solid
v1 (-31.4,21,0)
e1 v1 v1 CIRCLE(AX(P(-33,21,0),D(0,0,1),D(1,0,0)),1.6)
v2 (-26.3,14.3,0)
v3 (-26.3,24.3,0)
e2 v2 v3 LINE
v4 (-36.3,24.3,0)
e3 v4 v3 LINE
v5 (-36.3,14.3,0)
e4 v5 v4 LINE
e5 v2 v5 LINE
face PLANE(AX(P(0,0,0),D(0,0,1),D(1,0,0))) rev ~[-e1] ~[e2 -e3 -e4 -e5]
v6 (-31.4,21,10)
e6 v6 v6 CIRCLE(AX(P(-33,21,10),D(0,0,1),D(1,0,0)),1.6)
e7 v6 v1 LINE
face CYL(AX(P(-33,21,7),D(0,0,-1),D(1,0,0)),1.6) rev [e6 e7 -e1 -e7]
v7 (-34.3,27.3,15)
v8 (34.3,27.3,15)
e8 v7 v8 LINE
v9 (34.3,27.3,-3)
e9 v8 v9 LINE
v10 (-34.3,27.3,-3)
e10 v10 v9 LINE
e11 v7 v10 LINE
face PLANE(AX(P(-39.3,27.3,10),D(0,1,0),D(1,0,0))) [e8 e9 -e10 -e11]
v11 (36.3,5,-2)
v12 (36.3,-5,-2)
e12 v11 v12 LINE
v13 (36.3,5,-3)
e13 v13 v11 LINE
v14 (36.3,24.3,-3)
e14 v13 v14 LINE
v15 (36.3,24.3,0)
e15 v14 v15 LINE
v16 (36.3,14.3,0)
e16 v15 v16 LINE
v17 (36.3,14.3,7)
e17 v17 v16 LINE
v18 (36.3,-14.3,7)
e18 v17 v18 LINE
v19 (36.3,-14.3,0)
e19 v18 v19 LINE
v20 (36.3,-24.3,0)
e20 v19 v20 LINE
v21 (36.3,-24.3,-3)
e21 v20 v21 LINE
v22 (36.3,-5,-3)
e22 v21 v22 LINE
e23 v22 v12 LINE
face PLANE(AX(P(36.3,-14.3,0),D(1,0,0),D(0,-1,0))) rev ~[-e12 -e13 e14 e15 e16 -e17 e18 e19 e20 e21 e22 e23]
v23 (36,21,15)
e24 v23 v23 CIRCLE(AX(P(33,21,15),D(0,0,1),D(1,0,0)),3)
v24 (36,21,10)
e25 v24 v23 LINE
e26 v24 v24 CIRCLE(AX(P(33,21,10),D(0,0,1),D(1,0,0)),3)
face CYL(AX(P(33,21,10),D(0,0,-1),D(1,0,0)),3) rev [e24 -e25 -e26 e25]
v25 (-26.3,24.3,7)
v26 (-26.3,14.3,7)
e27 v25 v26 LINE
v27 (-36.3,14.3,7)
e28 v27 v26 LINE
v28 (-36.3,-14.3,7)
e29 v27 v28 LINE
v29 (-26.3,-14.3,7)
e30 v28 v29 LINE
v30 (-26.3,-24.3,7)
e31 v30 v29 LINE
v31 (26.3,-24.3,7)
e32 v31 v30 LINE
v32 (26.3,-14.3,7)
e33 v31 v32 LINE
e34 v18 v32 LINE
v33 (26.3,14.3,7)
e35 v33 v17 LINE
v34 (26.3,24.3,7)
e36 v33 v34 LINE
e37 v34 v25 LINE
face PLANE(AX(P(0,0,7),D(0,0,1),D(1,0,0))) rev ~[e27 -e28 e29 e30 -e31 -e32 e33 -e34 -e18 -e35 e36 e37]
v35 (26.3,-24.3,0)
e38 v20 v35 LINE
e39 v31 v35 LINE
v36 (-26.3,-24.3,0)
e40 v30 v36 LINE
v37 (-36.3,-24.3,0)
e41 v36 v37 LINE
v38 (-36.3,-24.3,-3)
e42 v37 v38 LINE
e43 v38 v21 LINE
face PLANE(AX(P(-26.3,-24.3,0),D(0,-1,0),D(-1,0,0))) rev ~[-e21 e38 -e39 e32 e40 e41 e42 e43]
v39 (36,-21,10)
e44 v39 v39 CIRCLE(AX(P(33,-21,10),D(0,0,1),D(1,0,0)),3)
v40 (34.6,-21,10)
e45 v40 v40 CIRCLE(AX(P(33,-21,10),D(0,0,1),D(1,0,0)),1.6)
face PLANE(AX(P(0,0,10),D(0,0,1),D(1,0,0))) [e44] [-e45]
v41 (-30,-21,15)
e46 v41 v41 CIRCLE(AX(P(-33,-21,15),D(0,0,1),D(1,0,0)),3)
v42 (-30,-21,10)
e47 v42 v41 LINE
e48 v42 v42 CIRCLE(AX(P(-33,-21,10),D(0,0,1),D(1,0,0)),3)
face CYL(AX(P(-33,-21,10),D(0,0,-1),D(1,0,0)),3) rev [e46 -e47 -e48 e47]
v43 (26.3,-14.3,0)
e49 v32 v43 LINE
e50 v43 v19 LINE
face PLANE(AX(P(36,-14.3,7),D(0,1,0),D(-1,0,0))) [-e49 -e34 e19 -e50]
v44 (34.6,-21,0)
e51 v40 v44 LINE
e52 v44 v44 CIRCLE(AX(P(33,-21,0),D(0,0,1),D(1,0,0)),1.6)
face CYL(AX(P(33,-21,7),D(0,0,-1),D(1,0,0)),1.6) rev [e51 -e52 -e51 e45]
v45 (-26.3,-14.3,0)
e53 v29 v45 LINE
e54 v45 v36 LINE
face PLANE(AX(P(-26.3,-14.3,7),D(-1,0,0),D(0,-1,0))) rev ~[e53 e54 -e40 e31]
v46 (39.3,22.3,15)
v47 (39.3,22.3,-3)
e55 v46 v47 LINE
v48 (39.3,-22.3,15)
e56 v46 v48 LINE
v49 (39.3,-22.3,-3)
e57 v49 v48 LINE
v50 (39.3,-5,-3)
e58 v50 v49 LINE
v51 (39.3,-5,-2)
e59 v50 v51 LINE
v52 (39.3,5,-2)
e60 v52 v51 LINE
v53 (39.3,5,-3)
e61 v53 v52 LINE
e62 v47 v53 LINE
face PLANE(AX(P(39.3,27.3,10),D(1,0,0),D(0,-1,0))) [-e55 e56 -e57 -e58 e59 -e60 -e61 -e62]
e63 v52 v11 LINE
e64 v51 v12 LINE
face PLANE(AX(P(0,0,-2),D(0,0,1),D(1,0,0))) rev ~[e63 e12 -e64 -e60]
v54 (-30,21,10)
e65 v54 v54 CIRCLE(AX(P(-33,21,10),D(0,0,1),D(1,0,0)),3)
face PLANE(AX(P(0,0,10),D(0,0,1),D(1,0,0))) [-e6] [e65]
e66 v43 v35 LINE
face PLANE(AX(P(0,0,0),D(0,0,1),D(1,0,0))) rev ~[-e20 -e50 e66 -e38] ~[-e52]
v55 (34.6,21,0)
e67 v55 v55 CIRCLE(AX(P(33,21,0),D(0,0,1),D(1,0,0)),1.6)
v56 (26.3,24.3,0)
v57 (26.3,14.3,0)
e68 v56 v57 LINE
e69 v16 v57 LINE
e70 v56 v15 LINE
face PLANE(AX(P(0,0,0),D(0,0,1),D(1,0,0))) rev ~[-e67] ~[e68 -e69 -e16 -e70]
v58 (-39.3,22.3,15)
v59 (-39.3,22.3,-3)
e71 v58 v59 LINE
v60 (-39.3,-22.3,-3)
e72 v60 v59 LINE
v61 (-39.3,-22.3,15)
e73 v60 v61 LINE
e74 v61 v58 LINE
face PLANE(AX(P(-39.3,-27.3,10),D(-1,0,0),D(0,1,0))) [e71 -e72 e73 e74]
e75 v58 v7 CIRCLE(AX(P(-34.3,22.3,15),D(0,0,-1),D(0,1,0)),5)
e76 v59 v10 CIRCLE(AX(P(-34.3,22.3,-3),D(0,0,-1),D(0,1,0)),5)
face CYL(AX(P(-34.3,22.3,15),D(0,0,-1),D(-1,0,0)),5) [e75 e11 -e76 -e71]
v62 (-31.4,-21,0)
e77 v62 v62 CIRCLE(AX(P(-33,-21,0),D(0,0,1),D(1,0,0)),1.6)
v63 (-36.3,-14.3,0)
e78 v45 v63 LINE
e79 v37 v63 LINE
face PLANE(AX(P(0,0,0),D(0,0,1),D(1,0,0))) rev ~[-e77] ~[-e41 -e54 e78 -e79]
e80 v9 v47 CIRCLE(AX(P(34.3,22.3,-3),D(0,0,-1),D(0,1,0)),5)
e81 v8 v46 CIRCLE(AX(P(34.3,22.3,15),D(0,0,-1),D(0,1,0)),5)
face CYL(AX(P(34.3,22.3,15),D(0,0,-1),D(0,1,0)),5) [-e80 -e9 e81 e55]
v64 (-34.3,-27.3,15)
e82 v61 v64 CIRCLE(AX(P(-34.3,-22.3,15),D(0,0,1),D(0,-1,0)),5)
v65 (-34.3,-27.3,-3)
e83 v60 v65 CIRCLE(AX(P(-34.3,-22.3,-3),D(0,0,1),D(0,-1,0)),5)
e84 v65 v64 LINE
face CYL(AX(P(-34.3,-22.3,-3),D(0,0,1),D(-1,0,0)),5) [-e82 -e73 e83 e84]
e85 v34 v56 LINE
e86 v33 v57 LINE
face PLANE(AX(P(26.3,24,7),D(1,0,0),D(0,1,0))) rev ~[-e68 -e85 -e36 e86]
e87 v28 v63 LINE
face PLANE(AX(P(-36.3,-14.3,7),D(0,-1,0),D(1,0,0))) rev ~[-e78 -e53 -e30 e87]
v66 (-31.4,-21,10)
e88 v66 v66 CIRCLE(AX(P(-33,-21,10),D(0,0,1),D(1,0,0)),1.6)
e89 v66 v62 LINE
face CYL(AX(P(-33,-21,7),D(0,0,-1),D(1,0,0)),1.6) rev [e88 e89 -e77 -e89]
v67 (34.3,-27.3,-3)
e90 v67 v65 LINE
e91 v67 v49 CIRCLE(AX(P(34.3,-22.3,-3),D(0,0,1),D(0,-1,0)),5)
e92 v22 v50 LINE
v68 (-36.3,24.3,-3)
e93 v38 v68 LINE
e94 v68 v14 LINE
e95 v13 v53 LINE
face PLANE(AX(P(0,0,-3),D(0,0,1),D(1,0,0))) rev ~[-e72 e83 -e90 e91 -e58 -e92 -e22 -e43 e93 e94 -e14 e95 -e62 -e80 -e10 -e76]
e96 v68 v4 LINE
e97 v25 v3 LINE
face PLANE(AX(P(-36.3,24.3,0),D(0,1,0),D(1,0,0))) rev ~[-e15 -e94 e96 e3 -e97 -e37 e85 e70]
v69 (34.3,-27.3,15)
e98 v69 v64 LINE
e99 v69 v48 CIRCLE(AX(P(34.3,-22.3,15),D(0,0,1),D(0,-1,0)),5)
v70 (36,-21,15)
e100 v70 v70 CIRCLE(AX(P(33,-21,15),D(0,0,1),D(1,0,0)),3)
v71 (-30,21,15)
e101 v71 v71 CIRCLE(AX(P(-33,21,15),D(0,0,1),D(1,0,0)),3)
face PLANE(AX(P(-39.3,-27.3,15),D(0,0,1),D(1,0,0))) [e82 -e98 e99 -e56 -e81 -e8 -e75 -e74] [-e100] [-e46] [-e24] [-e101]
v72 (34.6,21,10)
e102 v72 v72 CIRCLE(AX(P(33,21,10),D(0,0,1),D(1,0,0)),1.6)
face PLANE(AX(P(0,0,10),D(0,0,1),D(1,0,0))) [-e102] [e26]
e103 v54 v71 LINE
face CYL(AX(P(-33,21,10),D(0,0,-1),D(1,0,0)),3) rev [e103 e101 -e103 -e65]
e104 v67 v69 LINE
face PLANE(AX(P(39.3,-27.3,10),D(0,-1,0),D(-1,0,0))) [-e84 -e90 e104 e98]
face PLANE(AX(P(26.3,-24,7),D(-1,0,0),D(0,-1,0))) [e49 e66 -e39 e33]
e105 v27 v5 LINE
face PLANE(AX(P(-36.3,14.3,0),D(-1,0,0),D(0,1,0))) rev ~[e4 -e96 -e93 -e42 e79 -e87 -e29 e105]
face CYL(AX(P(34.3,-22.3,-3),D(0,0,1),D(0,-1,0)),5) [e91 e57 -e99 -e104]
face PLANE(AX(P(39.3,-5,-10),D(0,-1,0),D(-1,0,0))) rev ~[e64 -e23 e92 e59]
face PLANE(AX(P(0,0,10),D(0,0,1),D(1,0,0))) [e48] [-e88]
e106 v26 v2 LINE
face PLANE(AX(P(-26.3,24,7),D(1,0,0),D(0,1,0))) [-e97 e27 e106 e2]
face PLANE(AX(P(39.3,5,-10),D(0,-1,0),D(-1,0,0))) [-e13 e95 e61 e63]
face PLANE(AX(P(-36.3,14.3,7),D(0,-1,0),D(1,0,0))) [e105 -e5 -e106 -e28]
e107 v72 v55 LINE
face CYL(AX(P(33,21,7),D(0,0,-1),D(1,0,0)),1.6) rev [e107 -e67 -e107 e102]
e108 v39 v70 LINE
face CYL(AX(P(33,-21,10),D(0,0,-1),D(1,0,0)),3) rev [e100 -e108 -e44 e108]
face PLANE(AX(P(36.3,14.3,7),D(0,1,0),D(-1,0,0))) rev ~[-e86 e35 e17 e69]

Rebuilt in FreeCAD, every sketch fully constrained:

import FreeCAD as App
import Part
import Sketcher
from FreeCAD import Vector


def edges_at(feature, points):
    """Names of the edges that pass closest to the given points."""
    edges = feature.Shape.Edges
    near = lambda p: min(range(len(edges)), key=lambda i: edges[i].distToShape(Part.Vertex(*p))[0])
    return sorted({f"Edge{near(p) + 1}" for p in points})


def add_polygon(sketch, points):
    """Adds a closed chain of lines whose ends are joined by coincident constraints."""
    first, n = sketch.GeometryCount, len(points)
    for a, b in zip(points, points[1:] + points[:1]):
        sketch.addGeometry(Part.LineSegment(App.Vector(*a, 0), App.Vector(*b, 0)), False)
    for i in range(n):
        sketch.addConstraint(Sketcher.Constraint("Coincident", first + i, 2, first + (i + 1) % n, 1))

doc = App.newDocument("Part")
body = doc.addObject("PartDesign::Body", "Body")

# Sketch on XY plane
sketch1 = body.newObject("Sketcher::SketchObject", "Sketch")
sketch1.AttachmentSupport = (doc.getObject("XY_Plane"), [""])
sketch1.MapMode = "FlatFace"
add_polygon(sketch1, [(39, -27), (39, 27), (-39, 27), (-39, -27)])  # lines 0-3
add_polygon(sketch1, [(-36, 24), (36, 24), (36, -24), (-36, -24)])  # lines 4-7
sketch1.addConstraint([
    Sketcher.Constraint("Vertical", 0),
    Sketcher.Constraint("Horizontal", 1),
    Sketcher.Constraint("Vertical", 2),
    Sketcher.Constraint("Horizontal", 3),
    Sketcher.Constraint("Horizontal", 4),
    Sketcher.Constraint("Vertical", 5),
    Sketcher.Constraint("Horizontal", 6),
    Sketcher.Constraint("Vertical", 7),
    Sketcher.Constraint("Symmetric", 0, 2, 2, 2, -1, 1),
    Sketcher.Constraint("Symmetric", 4, 2, 6, 2, -1, 1),
    Sketcher.Constraint("DistanceX", 4, 2, 0, 2, 3.0),
    Sketcher.Constraint("DistanceY", 4, 2, 0, 2, 3.0),
    Sketcher.Constraint("DistanceX", 1, 2, 1, 1, 78.6),
    Sketcher.Constraint("DistanceY", 0, 1, 0, 2, 54.6),
])
pad1 = body.newObject("PartDesign::Pad", "Pad")
pad1.Profile = sketch1
pad1.Type = "TwoLengths"
pad1.Length = 7
pad1.Length2 = 3

# Sketch on XY plane
sketch2 = body.newObject("Sketcher::SketchObject", "Sketch001")
sketch2.AttachmentSupport = (doc.getObject("XY_Plane"), [""])
sketch2.MapMode = "FlatFace"
sketch2.AttachmentOffset = App.Placement(Vector(0, 0, 7), App.Rotation())
add_polygon(sketch2, [(-26.3, 24.3), (-36.3, 24.3), (-36.3, 14.3), (-26.3, 14.3)])  # lines 0-3
sketch2.addGeometry(Part.Circle(Vector(-33, 21, 0), Vector(0, 0, 1), 1.6), False)  # 4
add_polygon(sketch2, [(36.3, 24.3), (26.3, 24.3), (26.3, 14.3), (36.3, 14.3)])  # lines 5-8
sketch2.addGeometry(Part.Circle(Vector(33, 21, 0), Vector(0, 0, 1), 1.6), False)  # 9
add_polygon(sketch2, [(-36.3, -14.3), (-36.3, -24.3), (-26.3, -24.3), (-26.3, -14.3)])  # lines 10-13
sketch2.addGeometry(Part.Circle(Vector(-33, -21, 0), Vector(0, 0, 1), 1.6), False)  # 14
add_polygon(sketch2, [(26.3, -24.3), (36.3, -24.3), (36.3, -14.3), (26.3, -14.3)])  # lines 15-18
sketch2.addGeometry(Part.Circle(Vector(33, -21, 0), Vector(0, 0, 1), 1.6), False)  # 19
sketch2.addConstraint([
    Sketcher.Constraint("Horizontal", 0),
    Sketcher.Constraint("Vertical", 1),
    Sketcher.Constraint("Horizontal", 2),
    Sketcher.Constraint("Vertical", 3),
    Sketcher.Constraint("Horizontal", 5),
    Sketcher.Constraint("Vertical", 6),
    Sketcher.Constraint("Horizontal", 7),
    Sketcher.Constraint("Vertical", 8),
    Sketcher.Constraint("Vertical", 10),
    Sketcher.Constraint("Horizontal", 11),
    Sketcher.Constraint("Vertical", 12),
    Sketcher.Constraint("Horizontal", 13),
    Sketcher.Constraint("Horizontal", 15),
    Sketcher.Constraint("Vertical", 16),
    Sketcher.Constraint("Horizontal", 17),
    Sketcher.Constraint("Vertical", 18),
    Sketcher.Constraint("Equal", 4, 9),
    Sketcher.Constraint("Equal", 9, 14),
    Sketcher.Constraint("Equal", 14, 19),
    Sketcher.Constraint("Symmetric", 9, 3, 14, 3, -1, 1),
    Sketcher.Constraint("Symmetric", 4, 3, 19, 3, -1, 1),
    Sketcher.Constraint("Symmetric", 8, 2, 10, 2, -1, 1),
    Sketcher.Constraint("Symmetric", 6, 2, 12, 2, -1, 1),
    Sketcher.Constraint("Symmetric", 0, 2, 15, 2, -1, 1),
    Sketcher.Constraint("Symmetric", 2, 2, 17, 2, -1, 1),
    Sketcher.Constraint("Symmetric", 4, 3, 9, 3, -2),
    Sketcher.Constraint("Symmetric", 3, 2, 5, 2, -2),
    Sketcher.Constraint("Symmetric", 1, 2, 7, 2, -2),
    Sketcher.Constraint("Equal", 17, 1),
    Sketcher.Constraint("Diameter", 4, 3.2),
    Sketcher.Constraint("DistanceX", 0, 2, 0, 1, 10.0),
    Sketcher.Constraint("DistanceX", 4, 3, -1, 1, 33.0),
    Sketcher.Constraint("DistanceY", -1, 1, 4, 3, 21.0),
    Sketcher.Constraint("DistanceX", 0, 2, -1, 1, 36.3),
    Sketcher.Constraint("DistanceY", -1, 1, 0, 2, 24.3),
])
pad2 = body.newObject("PartDesign::Pad", "Pad001")
pad2.Profile = sketch2
pad2.Length = 7
pad2.Reversed = True

# Sketch on XY plane
sketch3 = body.newObject("Sketcher::SketchObject", "Sketch002")
sketch3.AttachmentSupport = (doc.getObject("XY_Plane"), [""])
sketch3.MapMode = "FlatFace"
sketch3.AttachmentOffset = App.Placement(Vector(0, 0, 7), App.Rotation())
add_polygon(sketch3, [(39.3, -27.3), (39.3, 27.3), (-39.3, 27.3), (-39.3, -27.3)])  # lines 0-3
sketch3.addGeometry(Part.Circle(Vector(-33, 21, 0), Vector(0, 0, 1), 1.6), False)  # 4
sketch3.addGeometry(Part.Circle(Vector(-33, -21, 0), Vector(0, 0, 1), 1.6), False)  # 5
sketch3.addGeometry(Part.Circle(Vector(33, -21, 0), Vector(0, 0, 1), 1.6), False)  # 6
sketch3.addGeometry(Part.Circle(Vector(33, 21, 0), Vector(0, 0, 1), 1.6), False)  # 7
sketch3.addConstraint([
    Sketcher.Constraint("Vertical", 0),
    Sketcher.Constraint("Horizontal", 1),
    Sketcher.Constraint("Vertical", 2),
    Sketcher.Constraint("Horizontal", 3),
    Sketcher.Constraint("Equal", 4, 5),
    Sketcher.Constraint("Equal", 5, 6),
    Sketcher.Constraint("Equal", 6, 7),
    Sketcher.Constraint("Symmetric", 4, 3, 6, 3, -1, 1),
    Sketcher.Constraint("Symmetric", 5, 3, 7, 3, -1, 1),
    Sketcher.Constraint("Symmetric", 0, 2, 2, 2, -1, 1),
    Sketcher.Constraint("Symmetric", 5, 3, 6, 3, -2),
    Sketcher.Constraint("Diameter", 4, 3.2),
    Sketcher.Constraint("DistanceX", 1, 2, 1, 1, 78.6),
    Sketcher.Constraint("DistanceY", 0, 1, 0, 2, 54.6),
    Sketcher.Constraint("DistanceX", 4, 3, -1, 1, 33.0),
    Sketcher.Constraint("DistanceY", -1, 1, 4, 3, 21.0),
])
pad3 = body.newObject("PartDesign::Pad", "Pad002")
pad3.Profile = sketch3
pad3.Length = 3

# Sketch on XY plane
sketch4 = body.newObject("Sketcher::SketchObject", "Sketch003")
sketch4.AttachmentSupport = (doc.getObject("XY_Plane"), [""])
sketch4.MapMode = "FlatFace"
sketch4.AttachmentOffset = App.Placement(Vector(0, 0, -10), App.Rotation())
add_polygon(sketch4, [(39.3, 5), (36.3, 5), (36.3, -5), (39.3, -5)])  # lines 0-3
sketch4.addConstraint([
    Sketcher.Constraint("Horizontal", 0),
    Sketcher.Constraint("Vertical", 1),
    Sketcher.Constraint("Horizontal", 2),
    Sketcher.Constraint("Vertical", 3),
    Sketcher.Constraint("DistanceX", 0, 2, 0, 1, 3.0),
    Sketcher.Constraint("DistanceY", 1, 2, 1, 1, 10.0),
    Sketcher.Constraint("DistanceY", -1, 1, 0, 2, 5.0),
    Sketcher.Constraint("DistanceX", -1, 1, 0, 2, 36.3),
])
pocket1 = body.newObject("PartDesign::Pocket", "Pocket")
pocket1.Profile = sketch4
pocket1.Length = 8
pocket1.Reversed = True

# Sketch on XY plane
sketch5 = body.newObject("Sketcher::SketchObject", "Sketch004")
sketch5.AttachmentSupport = (doc.getObject("XY_Plane"), [""])
sketch5.MapMode = "FlatFace"
sketch5.AttachmentOffset = App.Placement(Vector(0, 0, 10), App.Rotation())
add_polygon(sketch5, [(-39.3, 27.3), (-39.3, -27.3), (39.3, -27.3), (39.3, 27.3)])  # lines 0-3
sketch5.addGeometry(Part.Circle(Vector(-33, -21, 0), Vector(0, 0, 1), 3), False)  # 4
sketch5.addGeometry(Part.Circle(Vector(33, -21, 0), Vector(0, 0, 1), 3), False)  # 5
sketch5.addGeometry(Part.Circle(Vector(-33, 21, 0), Vector(0, 0, 1), 3), False)  # 6
sketch5.addGeometry(Part.Circle(Vector(33, 21, 0), Vector(0, 0, 1), 3), False)  # 7
sketch5.addConstraint([
    Sketcher.Constraint("Vertical", 0),
    Sketcher.Constraint("Horizontal", 1),
    Sketcher.Constraint("Vertical", 2),
    Sketcher.Constraint("Horizontal", 3),
    Sketcher.Constraint("Equal", 4, 5),
    Sketcher.Constraint("Equal", 5, 6),
    Sketcher.Constraint("Equal", 6, 7),
    Sketcher.Constraint("Symmetric", 5, 3, 6, 3, -1, 1),
    Sketcher.Constraint("Symmetric", 4, 3, 7, 3, -1, 1),
    Sketcher.Constraint("Symmetric", 0, 2, 2, 2, -1, 1),
    Sketcher.Constraint("Symmetric", 4, 3, 5, 3, -2),
    Sketcher.Constraint("Diameter", 4, 6.0),
    Sketcher.Constraint("DistanceX", 1, 1, 1, 2, 78.6),
    Sketcher.Constraint("DistanceY", 0, 2, 0, 1, 54.6),
    Sketcher.Constraint("DistanceX", 4, 3, -1, 1, 33.0),
    Sketcher.Constraint("DistanceY", 4, 3, -1, 1, 21.0),
])
pad4 = body.newObject("PartDesign::Pad", "Pad003")
pad4.Profile = sketch5
pad4.Length = 5
doc.recompute()

fillet = body.newObject("PartDesign::Fillet", "Fillet")
fillet.Base = (pad4, edges_at(pad4, [
    (-39.3, 27.3, 6),
    (-39.3, -27.3, 6),
    (39.3, 27.3, 6),
    (39.3, -27.3, 6),
]))
fillet.Radius = 5

doc.recompute()
